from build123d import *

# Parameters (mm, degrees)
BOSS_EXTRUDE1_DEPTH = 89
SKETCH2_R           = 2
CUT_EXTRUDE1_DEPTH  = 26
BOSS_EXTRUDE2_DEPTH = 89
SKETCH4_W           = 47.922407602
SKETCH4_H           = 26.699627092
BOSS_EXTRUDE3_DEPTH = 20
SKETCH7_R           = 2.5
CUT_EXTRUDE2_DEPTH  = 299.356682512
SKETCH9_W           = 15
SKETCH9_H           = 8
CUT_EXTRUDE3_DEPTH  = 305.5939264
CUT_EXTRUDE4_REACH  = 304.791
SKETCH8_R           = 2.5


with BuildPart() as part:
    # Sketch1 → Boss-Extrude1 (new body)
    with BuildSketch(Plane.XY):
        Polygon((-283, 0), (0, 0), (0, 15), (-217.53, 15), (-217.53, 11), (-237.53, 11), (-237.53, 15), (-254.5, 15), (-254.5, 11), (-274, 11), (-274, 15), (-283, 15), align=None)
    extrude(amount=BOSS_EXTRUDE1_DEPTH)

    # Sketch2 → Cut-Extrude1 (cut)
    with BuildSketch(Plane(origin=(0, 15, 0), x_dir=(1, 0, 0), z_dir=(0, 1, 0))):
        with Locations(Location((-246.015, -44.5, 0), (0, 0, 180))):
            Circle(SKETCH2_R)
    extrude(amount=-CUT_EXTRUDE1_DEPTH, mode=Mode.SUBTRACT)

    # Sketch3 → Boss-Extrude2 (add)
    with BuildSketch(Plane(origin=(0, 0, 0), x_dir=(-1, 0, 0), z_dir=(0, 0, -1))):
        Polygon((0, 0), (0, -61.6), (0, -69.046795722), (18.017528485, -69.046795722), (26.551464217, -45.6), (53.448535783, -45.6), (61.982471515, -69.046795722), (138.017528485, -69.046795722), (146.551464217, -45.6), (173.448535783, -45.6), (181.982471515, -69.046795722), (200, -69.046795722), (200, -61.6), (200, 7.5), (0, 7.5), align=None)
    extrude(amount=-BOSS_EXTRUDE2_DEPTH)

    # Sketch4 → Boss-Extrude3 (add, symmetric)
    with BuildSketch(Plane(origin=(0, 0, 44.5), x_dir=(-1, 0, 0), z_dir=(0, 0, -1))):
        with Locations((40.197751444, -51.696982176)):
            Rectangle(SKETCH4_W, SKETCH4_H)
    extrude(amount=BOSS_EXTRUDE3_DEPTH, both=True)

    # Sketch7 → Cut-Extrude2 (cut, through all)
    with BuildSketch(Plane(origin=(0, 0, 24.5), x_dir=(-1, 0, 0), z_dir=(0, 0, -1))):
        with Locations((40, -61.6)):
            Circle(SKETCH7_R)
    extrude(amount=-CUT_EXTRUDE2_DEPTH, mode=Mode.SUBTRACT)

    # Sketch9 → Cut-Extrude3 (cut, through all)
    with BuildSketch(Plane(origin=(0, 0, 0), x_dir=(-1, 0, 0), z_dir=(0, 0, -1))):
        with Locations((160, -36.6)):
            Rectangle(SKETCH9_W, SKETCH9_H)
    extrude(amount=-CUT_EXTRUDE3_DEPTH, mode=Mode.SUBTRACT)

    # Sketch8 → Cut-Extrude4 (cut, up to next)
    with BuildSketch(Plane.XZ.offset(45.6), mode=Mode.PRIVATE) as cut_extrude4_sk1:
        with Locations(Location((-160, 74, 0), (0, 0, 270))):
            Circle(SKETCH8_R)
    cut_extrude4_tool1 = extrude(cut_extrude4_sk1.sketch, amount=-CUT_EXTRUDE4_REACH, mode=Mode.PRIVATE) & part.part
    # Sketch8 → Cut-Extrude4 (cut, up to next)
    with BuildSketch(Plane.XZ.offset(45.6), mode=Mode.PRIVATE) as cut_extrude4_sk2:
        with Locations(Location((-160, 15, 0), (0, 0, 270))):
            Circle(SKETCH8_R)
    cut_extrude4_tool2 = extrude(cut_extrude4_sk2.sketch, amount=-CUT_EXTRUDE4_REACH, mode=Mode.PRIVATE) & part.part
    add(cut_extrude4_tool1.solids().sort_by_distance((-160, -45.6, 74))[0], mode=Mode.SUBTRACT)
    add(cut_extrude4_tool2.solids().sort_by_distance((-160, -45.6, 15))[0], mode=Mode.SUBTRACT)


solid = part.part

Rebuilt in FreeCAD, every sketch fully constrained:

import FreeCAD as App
import Part
import Sketcher

V = App.Vector
Q = App.Units.Quantity


def add_polygon(sketch, points):
    """Adds a closed chain of lines whose ends are joined by coincident constraints."""
    first, n = sketch.GeometryCount, len(points)
    for a, b in zip(points, points[1:] + points[:1]):
        sketch.addGeometry(Part.LineSegment(App.Vector(*a, 0), App.Vector(*b, 0)), False)
    for i in range(n):
        sketch.addConstraint(Sketcher.Constraint("Coincident", first + i, 2, first + (i + 1) % n, 1))

doc = App.newDocument("Part")
body = doc.addObject("PartDesign::Body", "Body")

# Sketch on XY plane
sketch1 = body.newObject("Sketcher::SketchObject", "Sketch")
sketch1.AttachmentSupport = (doc.getObject("XY_Plane"), [""])
sketch1.MapMode = "FlatFace"
add_polygon(sketch1, [(-283, 0), (0, 0), (0, 15), (-217.53, 15), (-217.53, 11), (-237.53, 11), (-237.53, 15), (-254.5, 15), (-254.5, 11), (-274, 11), (-274, 15), (-283, 15)])  # lines 0-11
sketch1.addConstraint([
    Sketcher.Constraint("Horizontal", 0),
    Sketcher.Constraint("Vertical", 1),
    Sketcher.Constraint("Horizontal", 2),
    Sketcher.Constraint("Vertical", 3),
    Sketcher.Constraint("Horizontal", 4),
    Sketcher.Constraint("Vertical", 5),
    Sketcher.Constraint("Horizontal", 6),
    Sketcher.Constraint("Vertical", 7),
    Sketcher.Constraint("Horizontal", 8),
    Sketcher.Constraint("Vertical", 9),
    Sketcher.Constraint("Horizontal", 10),
    Sketcher.Constraint("Vertical", 11),
    Sketcher.Constraint("Coincident", 0, 2, -1, 1),
    Sketcher.Constraint("Horizontal", 2, 2, 5, 2),
    Sketcher.Constraint("Horizontal", 4, 2, 7, 2),
    Sketcher.Constraint("Horizontal", 6, 2, 9, 2),
    Sketcher.Constraint("DistanceX", 0, 1, 0, 2, Q("283 mm")),
    Sketcher.Constraint("DistanceX", 4, 2, 4, 1, Q("20 mm")),
    Sketcher.Constraint("DistanceX", 10, 2, 10, 1, Q("9 mm")),
    Sketcher.Constraint("DistanceY", 1, 1, 1, 2, Q("15 mm")),
    Sketcher.Constraint("DistanceY", 3, 2, 3, 1, Q("4 mm")),
    Sketcher.Constraint("DistanceX", 8, 2, 8, 1, Q("19.5 mm")),
    Sketcher.Constraint("DistanceX", 2, 2, 2, 1, Q("217.53 mm")),
])
pad1 = body.newObject("PartDesign::Pad", "Pad")
pad1.Profile = sketch1
pad1.Length = 89

# Sketch on XZ plane
sketch2 = body.newObject("Sketcher::SketchObject", "Sketch001")
sketch2.AttachmentSupport = (doc.getObject("XZ_Plane"), [""])
sketch2.MapMode = "FlatFace"
sketch2.AttachmentOffset = App.Placement(V(0, 0, -15), App.Rotation())
sketch2.addGeometry(Part.Circle(V(-246.015, 44.5, 0), V(0, 0, 1), 2), False)
sketch2.addConstraint([
    Sketcher.Constraint("Diameter", 0, Q("4 mm")),
    Sketcher.Constraint("DistanceY", -1, 1, 0, 3, Q("44.5 mm")),
    Sketcher.Constraint("DistanceX", 0, 3, -1, 1, Q("246.015 mm")),
])
pocket1 = body.newObject("PartDesign::Pocket", "Pocket")
pocket1.Profile = sketch2
pocket1.Length = 26
pocket1.Reversed = True

# Sketch on XY plane
sketch3 = body.newObject("Sketcher::SketchObject", "Sketch002")
sketch3.AttachmentSupport = (doc.getObject("XY_Plane"), [""])
sketch3.MapMode = "FlatFace"
add_polygon(sketch3, [(0, -69.046796), (-18.017528, -69.046796), (-26.551464, -45.6), (-53.448536, -45.6), (-61.982472, -69.046796), (-138.017528, -69.046796), (-146.551464, -45.6), (-173.448536, -45.6), (-181.982472, -69.046796), (-200, -69.046796), (-200, 7.5), (0, 7.5)])  # lines 0-11
sketch3.addConstraint([
    Sketcher.Constraint("Horizontal", 0),
    Sketcher.Constraint("Horizontal", 2),
    Sketcher.Constraint("Horizontal", 4),
    Sketcher.Constraint("Horizontal", 6),
    Sketcher.Constraint("Horizontal", 8),
    Sketcher.Constraint("Vertical", 9),
    Sketcher.Constraint("Horizontal", 10),
    Sketcher.Constraint("Vertical", 11),
    Sketcher.Constraint("PointOnObject", 10, 2, -2),
    Sketcher.Constraint("Parallel", 1, 5),
    Sketcher.Constraint("Parallel", 3, 7),
    Sketcher.Constraint("Horizontal", 0, 2, 3, 2),
    Sketcher.Constraint("Horizontal", 2, 2, 5, 2),
    Sketcher.Constraint("Horizontal", 4, 2, 7, 2),
    Sketcher.Constraint("Equal", 2, 6),
    Sketcher.Constraint("Equal", 0, 8),
    Sketcher.Constraint("Equal", 1, 3),
    Sketcher.Constraint("DistanceX", 10, 1, 10, 2, Q("200 mm")),
    Sketcher.Constraint("Angle", 1, Q("110 deg")),
    Sketcher.Constraint("DistanceX", 4, 2, 0, 2, Q("120 mm")),
    Sketcher.Constraint("DistanceY", 1, 2, -1, 1, Q("45.6 mm")),
    Sketcher.Constraint("DistanceY", -1, 1, 9, 2, Q("7.5 mm")),
    Sketcher.Constraint("DistanceX", 0, 2, 0, 1, Q("18.017528 mm")),
    Sketcher.Constraint("DistanceX", 2, 2, 2, 1, Q("26.897072 mm")),
])
pad2 = body.newObject("PartDesign::Pad", "Pad001")
pad2.Profile = sketch3
pad2.Length = 89

# Sketch on XY plane
sketch4 = body.newObject("Sketcher::SketchObject", "Sketch003")
sketch4.AttachmentSupport = (doc.getObject("XY_Plane"), [""])
sketch4.MapMode = "FlatFace"
sketch4.AttachmentOffset = App.Placement(V(0, 0, 44.5), App.Rotation())
add_polygon(sketch4, [(-16.236548, -38.347169), (-16.236548, -65.046796), (-64.158955, -65.046796), (-64.158955, -38.347169)])  # lines 0-3
sketch4.addConstraint([
    Sketcher.Constraint("Vertical", 0),
    Sketcher.Constraint("Horizontal", 1),
    Sketcher.Constraint("Vertical", 2),
    Sketcher.Constraint("Horizontal", 3),
    Sketcher.Constraint("DistanceX", 1, 2, 1, 1, Q("47.922408 mm")),
    Sketcher.Constraint("DistanceY", 0, 2, 0, 1, Q("26.699627 mm")),
    Sketcher.Constraint("DistanceY", 2, 2, -1, 1, Q("38.347169 mm")),
    Sketcher.Constraint("DistanceX", 0, 2, -1, 1, Q("16.236548 mm")),
])
pad3 = body.newObject("PartDesign::Pad", "Pad002")
pad3.Profile = sketch4
pad3.Length = 40
pad3.Midplane = True

# Sketch on XY plane
sketch5 = body.newObject("Sketcher::SketchObject", "Sketch004")
sketch5.AttachmentSupport = (doc.getObject("XY_Plane"), [""])
sketch5.MapMode = "FlatFace"
sketch5.AttachmentOffset = App.Placement(V(0, 0, 24.5), App.Rotation())
sketch5.addGeometry(Part.Circle(V(-40, -61.6, 0), V(0, 0, 1), 2.5), False)
sketch5.addConstraint([
    Sketcher.Constraint("Diameter", 0, Q("5 mm")),
    Sketcher.Constraint("DistanceX", 0, 3, -1, 1, Q("40 mm")),
    Sketcher.Constraint("DistanceY", 0, 3, -1, 1, Q("61.6 mm")),
])
pocket2 = body.newObject("PartDesign::Pocket", "Pocket001")
pocket2.Profile = sketch5
pocket2.Type = "ThroughAll"
pocket2.Reversed = True

# Sketch on XY plane
sketch6 = body.newObject("Sketcher::SketchObject", "Sketch005")
sketch6.AttachmentSupport = (doc.getObject("XY_Plane"), [""])
sketch6.MapMode = "FlatFace"
add_polygon(sketch6, [(-152.5, -32.6), (-152.5, -40.6), (-167.5, -40.6), (-167.5, -32.6)])  # lines 0-3
sketch6.addConstraint([
    Sketcher.Constraint("Vertical", 0),
    Sketcher.Constraint("Horizontal", 1),
    Sketcher.Constraint("Vertical", 2),
    Sketcher.Constraint("Horizontal", 3),
    Sketcher.Constraint("DistanceX", 1, 2, 1, 1, Q("15 mm")),
    Sketcher.Constraint("DistanceY", 0, 2, 0, 1, Q("8 mm")),
    Sketcher.Constraint("DistanceX", 0, 2, -1, 1, Q("152.5 mm")),
    Sketcher.Constraint("DistanceY", 0, 2, -1, 1, Q("40.6 mm")),
])
pocket3 = body.newObject("PartDesign::Pocket", "Pocket002")
pocket3.Profile = sketch6
pocket3.Type = "ThroughAll"
pocket3.Reversed = True

# Sketch on XZ plane
sketch7 = body.newObject("Sketcher::SketchObject", "Sketch006")
sketch7.AttachmentSupport = (doc.getObject("XZ_Plane"), [""])
sketch7.MapMode = "FlatFace"
sketch7.AttachmentOffset = App.Placement(V(0, 0, 45.6), App.Rotation())
sketch7.addGeometry(Part.Circle(V(-160, 74, 0), V(0, 0, 1), 2.5), False)
sketch7.addConstraint([
    Sketcher.Constraint("Diameter", 0, Q("5 mm")),
    Sketcher.Constraint("DistanceX", 0, 3, -1, 1, Q("160 mm")),
    Sketcher.Constraint("DistanceY", -1, 1, 0, 3, Q("74 mm")),
])
pocket4 = body.newObject("PartDesign::Pocket", "Pocket003")
pocket4.Profile = sketch7
pocket4.Type = "UpToFirst"

# Sketch on XZ plane
sketch8 = body.newObject("Sketcher::SketchObject", "Sketch007")
sketch8.AttachmentSupport = (doc.getObject("XZ_Plane"), [""])
sketch8.MapMode = "FlatFace"
sketch8.AttachmentOffset = App.Placement(V(0, 0, 45.6), App.Rotation())
sketch8.addGeometry(Part.Circle(V(-160, 15, 0), V(0, 0, 1), 2.5), False)
sketch8.addConstraint([
    Sketcher.Constraint("Diameter", 0, Q("5 mm")),
    Sketcher.Constraint("DistanceX", 0, 3, -1, 1, Q("160 mm")),
    Sketcher.Constraint("DistanceY", -1, 1, 0, 3, Q("15 mm")),
])
pocket5 = body.newObject("PartDesign::Pocket", "Pocket004")
pocket5.Profile = sketch8
pocket5.Type = "UpToFirst"

doc.recompute()
